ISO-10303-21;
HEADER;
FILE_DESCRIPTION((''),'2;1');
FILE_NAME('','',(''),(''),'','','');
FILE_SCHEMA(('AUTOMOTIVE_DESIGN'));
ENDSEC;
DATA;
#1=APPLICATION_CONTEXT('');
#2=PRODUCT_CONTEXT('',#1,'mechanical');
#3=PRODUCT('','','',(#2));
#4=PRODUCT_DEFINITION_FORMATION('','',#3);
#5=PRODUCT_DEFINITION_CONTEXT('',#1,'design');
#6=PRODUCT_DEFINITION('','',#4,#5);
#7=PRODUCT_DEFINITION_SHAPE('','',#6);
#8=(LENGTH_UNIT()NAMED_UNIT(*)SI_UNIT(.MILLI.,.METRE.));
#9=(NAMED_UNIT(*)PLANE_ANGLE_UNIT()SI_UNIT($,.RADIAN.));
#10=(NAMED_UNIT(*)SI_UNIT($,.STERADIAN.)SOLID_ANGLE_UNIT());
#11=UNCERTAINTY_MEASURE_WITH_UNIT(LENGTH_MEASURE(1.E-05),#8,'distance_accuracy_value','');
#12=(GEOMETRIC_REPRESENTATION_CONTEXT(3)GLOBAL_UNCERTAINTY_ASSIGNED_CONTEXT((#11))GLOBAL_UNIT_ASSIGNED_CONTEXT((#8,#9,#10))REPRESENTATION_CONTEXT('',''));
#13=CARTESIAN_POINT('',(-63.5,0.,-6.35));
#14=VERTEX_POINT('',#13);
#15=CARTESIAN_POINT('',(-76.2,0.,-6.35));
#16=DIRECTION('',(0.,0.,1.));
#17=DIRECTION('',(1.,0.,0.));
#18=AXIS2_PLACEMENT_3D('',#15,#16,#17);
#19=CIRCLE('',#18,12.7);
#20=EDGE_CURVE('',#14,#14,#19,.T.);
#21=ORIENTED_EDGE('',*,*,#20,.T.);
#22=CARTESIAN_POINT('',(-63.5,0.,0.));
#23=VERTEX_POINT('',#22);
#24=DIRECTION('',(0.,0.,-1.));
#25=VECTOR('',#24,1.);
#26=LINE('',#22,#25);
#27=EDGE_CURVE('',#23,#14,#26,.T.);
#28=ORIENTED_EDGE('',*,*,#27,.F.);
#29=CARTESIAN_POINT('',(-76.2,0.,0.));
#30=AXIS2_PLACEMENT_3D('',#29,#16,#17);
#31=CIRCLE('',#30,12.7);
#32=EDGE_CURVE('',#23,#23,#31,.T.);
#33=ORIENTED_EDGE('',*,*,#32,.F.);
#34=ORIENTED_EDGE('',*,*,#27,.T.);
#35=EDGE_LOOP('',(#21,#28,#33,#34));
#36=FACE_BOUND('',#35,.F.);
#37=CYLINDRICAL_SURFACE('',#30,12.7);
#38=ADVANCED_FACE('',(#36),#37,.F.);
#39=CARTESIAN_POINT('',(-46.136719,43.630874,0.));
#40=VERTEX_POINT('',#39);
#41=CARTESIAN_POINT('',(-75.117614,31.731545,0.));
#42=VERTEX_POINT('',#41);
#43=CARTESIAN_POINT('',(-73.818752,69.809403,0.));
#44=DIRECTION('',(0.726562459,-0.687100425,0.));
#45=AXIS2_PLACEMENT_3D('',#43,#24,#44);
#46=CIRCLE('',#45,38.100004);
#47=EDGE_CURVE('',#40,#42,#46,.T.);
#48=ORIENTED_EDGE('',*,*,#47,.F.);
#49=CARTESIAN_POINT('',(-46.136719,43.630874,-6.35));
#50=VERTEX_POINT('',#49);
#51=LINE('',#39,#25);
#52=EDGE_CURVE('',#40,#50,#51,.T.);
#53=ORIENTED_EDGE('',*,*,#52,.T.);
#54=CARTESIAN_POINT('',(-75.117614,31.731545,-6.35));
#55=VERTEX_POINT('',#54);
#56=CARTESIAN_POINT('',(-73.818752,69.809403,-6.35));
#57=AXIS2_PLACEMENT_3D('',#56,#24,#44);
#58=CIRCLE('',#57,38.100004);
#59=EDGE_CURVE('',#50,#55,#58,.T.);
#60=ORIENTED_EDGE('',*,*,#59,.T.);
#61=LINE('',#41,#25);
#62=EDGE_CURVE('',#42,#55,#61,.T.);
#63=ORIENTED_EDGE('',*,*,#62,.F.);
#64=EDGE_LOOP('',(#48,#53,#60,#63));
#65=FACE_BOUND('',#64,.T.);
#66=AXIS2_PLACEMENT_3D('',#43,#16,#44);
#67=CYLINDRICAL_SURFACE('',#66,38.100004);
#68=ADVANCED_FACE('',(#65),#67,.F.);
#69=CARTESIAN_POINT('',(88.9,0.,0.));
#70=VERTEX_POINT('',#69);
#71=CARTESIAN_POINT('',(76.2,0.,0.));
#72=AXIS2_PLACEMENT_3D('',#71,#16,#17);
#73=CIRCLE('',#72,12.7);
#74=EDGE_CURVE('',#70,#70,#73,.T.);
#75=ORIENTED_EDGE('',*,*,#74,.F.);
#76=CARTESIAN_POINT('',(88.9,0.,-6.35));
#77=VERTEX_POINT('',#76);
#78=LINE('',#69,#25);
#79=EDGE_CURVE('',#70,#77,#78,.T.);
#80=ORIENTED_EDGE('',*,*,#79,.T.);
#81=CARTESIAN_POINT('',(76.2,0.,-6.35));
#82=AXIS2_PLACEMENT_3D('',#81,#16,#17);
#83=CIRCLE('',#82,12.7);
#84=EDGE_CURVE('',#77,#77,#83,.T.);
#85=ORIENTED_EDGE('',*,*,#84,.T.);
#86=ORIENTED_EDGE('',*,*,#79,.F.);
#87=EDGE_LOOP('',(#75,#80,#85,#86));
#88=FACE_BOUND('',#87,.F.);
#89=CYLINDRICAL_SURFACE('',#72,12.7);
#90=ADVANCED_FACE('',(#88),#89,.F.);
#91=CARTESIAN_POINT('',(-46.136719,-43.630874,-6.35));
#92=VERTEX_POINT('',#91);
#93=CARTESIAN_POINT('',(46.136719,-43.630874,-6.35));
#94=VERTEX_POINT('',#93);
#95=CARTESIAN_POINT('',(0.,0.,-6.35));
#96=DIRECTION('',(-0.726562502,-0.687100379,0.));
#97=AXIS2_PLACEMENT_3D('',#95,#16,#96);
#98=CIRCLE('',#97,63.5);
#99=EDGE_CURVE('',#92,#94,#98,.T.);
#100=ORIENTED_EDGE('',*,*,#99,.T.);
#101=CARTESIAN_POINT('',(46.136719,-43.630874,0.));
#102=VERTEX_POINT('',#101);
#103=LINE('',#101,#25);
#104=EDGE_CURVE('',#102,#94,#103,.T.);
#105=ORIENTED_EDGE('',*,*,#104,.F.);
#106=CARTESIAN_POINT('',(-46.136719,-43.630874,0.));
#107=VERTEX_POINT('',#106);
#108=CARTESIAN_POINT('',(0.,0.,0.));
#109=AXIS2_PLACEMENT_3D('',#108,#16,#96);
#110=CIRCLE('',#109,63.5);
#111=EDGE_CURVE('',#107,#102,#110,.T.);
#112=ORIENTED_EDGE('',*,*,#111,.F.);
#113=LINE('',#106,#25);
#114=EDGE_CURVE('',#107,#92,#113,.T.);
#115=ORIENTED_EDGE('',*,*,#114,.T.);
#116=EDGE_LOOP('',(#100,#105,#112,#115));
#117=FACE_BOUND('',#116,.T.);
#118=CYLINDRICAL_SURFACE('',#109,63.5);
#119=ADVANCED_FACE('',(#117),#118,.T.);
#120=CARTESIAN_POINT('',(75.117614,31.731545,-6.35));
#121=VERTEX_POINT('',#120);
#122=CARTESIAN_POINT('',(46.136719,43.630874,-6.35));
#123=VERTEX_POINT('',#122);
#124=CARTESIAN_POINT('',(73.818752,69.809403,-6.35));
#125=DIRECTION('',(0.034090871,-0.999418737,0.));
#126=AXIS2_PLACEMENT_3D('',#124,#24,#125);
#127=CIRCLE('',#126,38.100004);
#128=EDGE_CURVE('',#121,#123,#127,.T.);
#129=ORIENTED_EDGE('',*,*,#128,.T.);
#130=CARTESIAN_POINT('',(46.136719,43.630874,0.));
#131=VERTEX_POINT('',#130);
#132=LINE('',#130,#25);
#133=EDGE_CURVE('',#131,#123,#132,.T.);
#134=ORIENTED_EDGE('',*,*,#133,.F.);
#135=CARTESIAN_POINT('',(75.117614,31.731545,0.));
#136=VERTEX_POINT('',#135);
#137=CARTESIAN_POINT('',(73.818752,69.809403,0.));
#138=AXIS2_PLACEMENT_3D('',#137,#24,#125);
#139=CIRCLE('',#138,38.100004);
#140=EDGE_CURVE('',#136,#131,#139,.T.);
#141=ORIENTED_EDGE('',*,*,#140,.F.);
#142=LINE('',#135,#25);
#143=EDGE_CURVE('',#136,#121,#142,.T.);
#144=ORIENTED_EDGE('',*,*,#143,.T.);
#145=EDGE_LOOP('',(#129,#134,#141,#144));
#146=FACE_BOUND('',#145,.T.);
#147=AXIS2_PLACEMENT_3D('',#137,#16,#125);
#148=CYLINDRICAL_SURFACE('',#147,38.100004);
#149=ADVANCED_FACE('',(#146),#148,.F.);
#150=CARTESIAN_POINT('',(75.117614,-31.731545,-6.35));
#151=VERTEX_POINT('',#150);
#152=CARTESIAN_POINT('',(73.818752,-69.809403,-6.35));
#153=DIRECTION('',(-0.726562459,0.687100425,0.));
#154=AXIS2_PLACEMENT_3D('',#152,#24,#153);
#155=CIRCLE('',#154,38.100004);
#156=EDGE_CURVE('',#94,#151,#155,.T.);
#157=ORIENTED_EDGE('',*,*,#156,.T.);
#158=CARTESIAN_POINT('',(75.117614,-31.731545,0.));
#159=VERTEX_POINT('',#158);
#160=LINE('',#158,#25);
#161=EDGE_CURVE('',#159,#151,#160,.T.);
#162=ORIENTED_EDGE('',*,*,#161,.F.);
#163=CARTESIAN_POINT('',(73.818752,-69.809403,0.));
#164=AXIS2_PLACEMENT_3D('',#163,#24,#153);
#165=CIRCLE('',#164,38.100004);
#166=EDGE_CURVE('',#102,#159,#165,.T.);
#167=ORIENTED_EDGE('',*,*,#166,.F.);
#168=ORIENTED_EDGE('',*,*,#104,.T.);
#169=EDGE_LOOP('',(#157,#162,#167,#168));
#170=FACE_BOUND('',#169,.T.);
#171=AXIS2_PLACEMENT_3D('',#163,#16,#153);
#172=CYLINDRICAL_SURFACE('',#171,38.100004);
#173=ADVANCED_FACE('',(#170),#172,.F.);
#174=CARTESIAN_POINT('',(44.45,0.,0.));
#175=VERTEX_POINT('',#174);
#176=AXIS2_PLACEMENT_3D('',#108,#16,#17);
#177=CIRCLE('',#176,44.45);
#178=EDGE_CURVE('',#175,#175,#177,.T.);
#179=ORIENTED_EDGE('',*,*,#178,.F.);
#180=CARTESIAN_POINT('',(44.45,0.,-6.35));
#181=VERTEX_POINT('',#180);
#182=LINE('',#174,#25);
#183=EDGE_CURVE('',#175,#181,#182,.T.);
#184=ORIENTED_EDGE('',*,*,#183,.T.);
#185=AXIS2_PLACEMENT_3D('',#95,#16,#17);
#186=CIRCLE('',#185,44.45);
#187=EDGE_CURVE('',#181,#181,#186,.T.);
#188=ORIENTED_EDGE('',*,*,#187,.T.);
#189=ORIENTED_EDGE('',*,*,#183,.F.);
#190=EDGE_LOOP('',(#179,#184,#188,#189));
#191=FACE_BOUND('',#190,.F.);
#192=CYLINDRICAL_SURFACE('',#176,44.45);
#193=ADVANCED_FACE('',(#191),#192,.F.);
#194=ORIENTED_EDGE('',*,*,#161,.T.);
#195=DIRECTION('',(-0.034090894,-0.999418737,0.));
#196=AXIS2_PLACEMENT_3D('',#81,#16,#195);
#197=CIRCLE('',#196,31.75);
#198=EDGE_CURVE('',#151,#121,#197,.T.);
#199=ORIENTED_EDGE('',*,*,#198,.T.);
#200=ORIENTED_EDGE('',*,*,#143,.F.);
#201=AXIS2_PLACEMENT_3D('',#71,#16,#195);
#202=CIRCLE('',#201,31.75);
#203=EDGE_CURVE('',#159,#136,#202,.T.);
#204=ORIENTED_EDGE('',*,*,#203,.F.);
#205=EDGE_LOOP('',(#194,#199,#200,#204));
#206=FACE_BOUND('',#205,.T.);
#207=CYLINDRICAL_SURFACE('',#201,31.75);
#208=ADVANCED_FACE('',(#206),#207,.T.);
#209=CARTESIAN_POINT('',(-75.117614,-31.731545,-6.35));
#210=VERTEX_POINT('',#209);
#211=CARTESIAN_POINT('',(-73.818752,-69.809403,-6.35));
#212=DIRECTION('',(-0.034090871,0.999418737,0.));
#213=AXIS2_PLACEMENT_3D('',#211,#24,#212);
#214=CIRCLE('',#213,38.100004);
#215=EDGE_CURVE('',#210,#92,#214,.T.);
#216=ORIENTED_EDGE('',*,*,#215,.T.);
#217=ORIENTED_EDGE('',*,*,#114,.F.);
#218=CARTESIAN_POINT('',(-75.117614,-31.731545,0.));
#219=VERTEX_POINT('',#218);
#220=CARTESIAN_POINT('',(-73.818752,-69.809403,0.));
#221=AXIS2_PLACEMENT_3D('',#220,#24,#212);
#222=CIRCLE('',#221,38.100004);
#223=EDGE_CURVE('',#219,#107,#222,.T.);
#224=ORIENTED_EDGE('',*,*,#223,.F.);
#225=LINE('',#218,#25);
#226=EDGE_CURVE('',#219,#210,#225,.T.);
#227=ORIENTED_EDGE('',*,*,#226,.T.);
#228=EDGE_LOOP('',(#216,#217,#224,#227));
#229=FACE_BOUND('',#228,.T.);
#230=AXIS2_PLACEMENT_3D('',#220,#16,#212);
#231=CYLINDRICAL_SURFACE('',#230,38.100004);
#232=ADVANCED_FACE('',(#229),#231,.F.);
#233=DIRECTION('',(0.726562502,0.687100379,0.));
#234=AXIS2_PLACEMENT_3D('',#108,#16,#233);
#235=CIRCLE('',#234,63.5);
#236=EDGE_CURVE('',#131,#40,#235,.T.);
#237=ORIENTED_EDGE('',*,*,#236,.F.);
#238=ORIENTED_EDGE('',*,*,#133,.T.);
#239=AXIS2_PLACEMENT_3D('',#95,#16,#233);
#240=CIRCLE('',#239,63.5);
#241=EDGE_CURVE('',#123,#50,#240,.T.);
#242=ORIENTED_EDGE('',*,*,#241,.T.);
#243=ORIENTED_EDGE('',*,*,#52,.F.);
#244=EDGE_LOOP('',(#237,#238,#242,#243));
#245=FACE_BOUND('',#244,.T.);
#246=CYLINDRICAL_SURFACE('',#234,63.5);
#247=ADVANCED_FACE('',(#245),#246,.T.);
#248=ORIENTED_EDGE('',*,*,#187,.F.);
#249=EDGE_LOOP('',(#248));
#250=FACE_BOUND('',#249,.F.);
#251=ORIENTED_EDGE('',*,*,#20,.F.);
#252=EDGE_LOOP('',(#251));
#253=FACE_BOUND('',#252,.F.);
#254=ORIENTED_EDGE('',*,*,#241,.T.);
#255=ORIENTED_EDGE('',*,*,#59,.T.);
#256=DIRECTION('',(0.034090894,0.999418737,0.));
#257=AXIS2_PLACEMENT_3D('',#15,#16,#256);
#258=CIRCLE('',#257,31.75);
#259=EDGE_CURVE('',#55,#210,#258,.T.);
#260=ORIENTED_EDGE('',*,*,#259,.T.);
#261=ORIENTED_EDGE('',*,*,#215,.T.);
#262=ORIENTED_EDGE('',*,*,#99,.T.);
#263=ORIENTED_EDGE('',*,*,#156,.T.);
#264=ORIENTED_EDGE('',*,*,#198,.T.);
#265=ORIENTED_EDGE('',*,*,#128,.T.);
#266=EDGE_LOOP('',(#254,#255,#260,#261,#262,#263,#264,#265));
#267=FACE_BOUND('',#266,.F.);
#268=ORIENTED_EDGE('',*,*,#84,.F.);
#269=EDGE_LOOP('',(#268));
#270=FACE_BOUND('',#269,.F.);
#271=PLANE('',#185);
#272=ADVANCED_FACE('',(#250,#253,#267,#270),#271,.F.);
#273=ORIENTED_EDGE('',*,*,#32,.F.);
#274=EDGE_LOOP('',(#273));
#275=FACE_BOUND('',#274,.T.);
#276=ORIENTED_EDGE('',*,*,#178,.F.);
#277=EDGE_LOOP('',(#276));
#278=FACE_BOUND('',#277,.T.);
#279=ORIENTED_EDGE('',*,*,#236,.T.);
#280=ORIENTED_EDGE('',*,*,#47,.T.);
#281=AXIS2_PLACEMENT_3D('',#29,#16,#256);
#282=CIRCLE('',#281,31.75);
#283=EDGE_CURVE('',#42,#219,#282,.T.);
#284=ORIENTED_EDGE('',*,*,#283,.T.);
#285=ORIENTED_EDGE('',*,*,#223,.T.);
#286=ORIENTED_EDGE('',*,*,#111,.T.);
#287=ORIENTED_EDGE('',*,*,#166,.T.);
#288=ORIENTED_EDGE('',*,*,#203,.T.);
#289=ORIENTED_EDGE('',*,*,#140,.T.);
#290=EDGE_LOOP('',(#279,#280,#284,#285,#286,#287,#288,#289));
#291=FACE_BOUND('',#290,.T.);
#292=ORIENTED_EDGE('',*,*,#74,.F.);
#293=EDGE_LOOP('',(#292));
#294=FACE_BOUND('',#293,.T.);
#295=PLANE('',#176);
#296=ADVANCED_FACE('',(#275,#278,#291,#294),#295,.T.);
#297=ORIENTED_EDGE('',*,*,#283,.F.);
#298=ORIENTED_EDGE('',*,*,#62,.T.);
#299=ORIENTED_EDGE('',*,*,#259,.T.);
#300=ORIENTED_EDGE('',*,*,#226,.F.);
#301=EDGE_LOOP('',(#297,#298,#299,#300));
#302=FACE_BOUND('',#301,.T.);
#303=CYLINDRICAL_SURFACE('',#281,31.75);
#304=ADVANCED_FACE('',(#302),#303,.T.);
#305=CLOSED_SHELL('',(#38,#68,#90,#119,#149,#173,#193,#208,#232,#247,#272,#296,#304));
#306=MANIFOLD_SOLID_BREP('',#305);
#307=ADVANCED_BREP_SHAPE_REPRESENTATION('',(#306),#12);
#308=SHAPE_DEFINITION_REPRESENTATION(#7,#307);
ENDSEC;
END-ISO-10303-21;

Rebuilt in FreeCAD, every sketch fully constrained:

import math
import FreeCAD as App
import Part
import Sketcher

V = App.Vector
Q = App.Units.Quantity

doc = App.newDocument("Part")
params = doc.addObject("Spreadsheet::Sheet", "Params")
for row, (alias, value) in enumerate([
    ("sketch1_diameter", "1 in"),
    ("sketch1_diameter2", "3.5 in"),
    ("sketch1_radius", "1.5000002 in"),
    ("sketch1_radius2", "2.5 in"),
    ("sketch1_radius3", "1.25 in"),
    ("pad1_length", "0.25 in"),
], start=1):
    params.set(f"A{row}", alias)
    params.set(f"B{row}", "=" + value)
    params.setAlias(f"B{row}", alias)

body = doc.addObject("PartDesign::Body", "Body")

# Sketch on XY plane
sketch1 = body.newObject("Sketcher::SketchObject", "Sketch")
sketch1.AttachmentSupport = (doc.getObject("XY_Plane"), [""])
sketch1.MapMode = "FlatFace"
sketch1.addGeometry(Part.ArcOfCircle(Part.Circle(V(-74, 70, 0), V(0, 0, 1), 38), math.radians(-92), math.radians(-43)), False)
sketch1.addGeometry(Part.ArcOfCircle(Part.Circle(V(-76, 0, 0), V(0, 0, 1), 32), math.radians(88), math.radians(272)), False)
sketch1.addGeometry(Part.ArcOfCircle(Part.Circle(V(-74, -70, 0), V(0, 0, 1), 38), math.radians(43), math.radians(92)), False)
sketch1.addGeometry(Part.ArcOfCircle(Part.Circle(V(0, 0, 0), V(0, 0, 1), 64), math.radians(-137), math.radians(-43)), False)
sketch1.addGeometry(Part.ArcOfCircle(Part.Circle(V(74, -70, 0), V(0, 0, 1), 38), math.radians(88), math.radians(137)), False)
sketch1.addGeometry(Part.ArcOfCircle(Part.Circle(V(76, 0, 0), V(0, 0, 1), 32), math.radians(-92), math.radians(92)), False)
sketch1.addGeometry(Part.ArcOfCircle(Part.Circle(V(74, 70, 0), V(0, 0, 1), 38), math.radians(-137), math.radians(-88)), False)
sketch1.addGeometry(Part.ArcOfCircle(Part.Circle(V(0, 0, 0), V(0, 0, 1), 64), math.radians(43), math.radians(137)), False)
sketch1.addGeometry(Part.Circle(V(-76, 0, 0), V(0, 0, 1), 13), False)
sketch1.addGeometry(Part.Circle(V(0, 0, 0), V(0, 0, 1), 44), False)
sketch1.addGeometry(Part.Circle(V(76, 0, 0), V(0, 0, 1), 13), False)
sketch1.addConstraint(Sketcher.Constraint("Tangent", 0, 1, 1, 1))
sketch1.addConstraint(Sketcher.Constraint("Tangent", 1, 2, 2, 2))
sketch1.addConstraint(Sketcher.Constraint("Tangent", 2, 1, 3, 1))
sketch1.addConstraint(Sketcher.Constraint("Tangent", 3, 2, 4, 2))
sketch1.addConstraint(Sketcher.Constraint("Tangent", 4, 1, 5, 1))
sketch1.addConstraint(Sketcher.Constraint("Tangent", 5, 2, 6, 2))
sketch1.addConstraint(Sketcher.Constraint("Tangent", 6, 1, 7, 1))
sketch1.addConstraint(Sketcher.Constraint("Tangent", 7, 2, 0, 2))
sketch1.addConstraint(Sketcher.Constraint("Coincident", 3, 3, -1, 1))
sketch1.addConstraint(Sketcher.Constraint("Coincident", 7, 3, -1, 1))
sketch1.addConstraint(Sketcher.Constraint("Coincident", 9, 3, -1, 1))
sketch1.addConstraint(Sketcher.Constraint("Coincident", 8, 3, 1, 3))
sketch1.addConstraint(Sketcher.Constraint("Coincident", 10, 3, 5, 3))
sketch1.addConstraint(Sketcher.Constraint("Equal", 0, 2))
sketch1.addConstraint(Sketcher.Constraint("Equal", 2, 4))
sketch1.addConstraint(Sketcher.Constraint("Equal", 1, 5))
sketch1.addConstraint(Sketcher.Constraint("Equal", 4, 6))
sketch1.addConstraint(Sketcher.Constraint("Equal", 3, 7))
sketch1.addConstraint(Sketcher.Constraint("Equal", 8, 10))
sketch1.addConstraint(Sketcher.Constraint("Symmetric", 1, 3, 5, 3, -1, 1))
sketch1.addConstraint(Sketcher.Constraint("PointOnObject", 1, 3, -1))
sketch1.addConstraint(Sketcher.Constraint("Diameter", 8, Q("1 in")))
sketch1.addConstraint(Sketcher.Constraint("Diameter", 9, Q("3.5 in")))
sketch1.addConstraint(Sketcher.Constraint("Radius", 0, Q("1.5000002 in")))
sketch1.addConstraint(Sketcher.Constraint("Radius", 3, Q("2.5 in")))
sketch1.addConstraint(Sketcher.Constraint("Radius", 1, Q("1.25 in")))
sketch1.addConstraint(Sketcher.Constraint("DistanceX", 1, 3, -1, 1, Q("3 in")))
sketch1.setExpression("Constraints[21]", "Params.sketch1_diameter")
sketch1.setExpression("Constraints[22]", "Params.sketch1_diameter2")
sketch1.setExpression("Constraints[23]", "Params.sketch1_radius")
sketch1.setExpression("Constraints[24]", "Params.sketch1_radius2")
sketch1.setExpression("Constraints[25]", "Params.sketch1_radius3")
pad1 = body.newObject("PartDesign::Pad", "Pad")
pad1.Profile = sketch1
pad1.setExpression("Length", "Params.pad1_length")
pad1.Reversed = True

doc.recompute()
